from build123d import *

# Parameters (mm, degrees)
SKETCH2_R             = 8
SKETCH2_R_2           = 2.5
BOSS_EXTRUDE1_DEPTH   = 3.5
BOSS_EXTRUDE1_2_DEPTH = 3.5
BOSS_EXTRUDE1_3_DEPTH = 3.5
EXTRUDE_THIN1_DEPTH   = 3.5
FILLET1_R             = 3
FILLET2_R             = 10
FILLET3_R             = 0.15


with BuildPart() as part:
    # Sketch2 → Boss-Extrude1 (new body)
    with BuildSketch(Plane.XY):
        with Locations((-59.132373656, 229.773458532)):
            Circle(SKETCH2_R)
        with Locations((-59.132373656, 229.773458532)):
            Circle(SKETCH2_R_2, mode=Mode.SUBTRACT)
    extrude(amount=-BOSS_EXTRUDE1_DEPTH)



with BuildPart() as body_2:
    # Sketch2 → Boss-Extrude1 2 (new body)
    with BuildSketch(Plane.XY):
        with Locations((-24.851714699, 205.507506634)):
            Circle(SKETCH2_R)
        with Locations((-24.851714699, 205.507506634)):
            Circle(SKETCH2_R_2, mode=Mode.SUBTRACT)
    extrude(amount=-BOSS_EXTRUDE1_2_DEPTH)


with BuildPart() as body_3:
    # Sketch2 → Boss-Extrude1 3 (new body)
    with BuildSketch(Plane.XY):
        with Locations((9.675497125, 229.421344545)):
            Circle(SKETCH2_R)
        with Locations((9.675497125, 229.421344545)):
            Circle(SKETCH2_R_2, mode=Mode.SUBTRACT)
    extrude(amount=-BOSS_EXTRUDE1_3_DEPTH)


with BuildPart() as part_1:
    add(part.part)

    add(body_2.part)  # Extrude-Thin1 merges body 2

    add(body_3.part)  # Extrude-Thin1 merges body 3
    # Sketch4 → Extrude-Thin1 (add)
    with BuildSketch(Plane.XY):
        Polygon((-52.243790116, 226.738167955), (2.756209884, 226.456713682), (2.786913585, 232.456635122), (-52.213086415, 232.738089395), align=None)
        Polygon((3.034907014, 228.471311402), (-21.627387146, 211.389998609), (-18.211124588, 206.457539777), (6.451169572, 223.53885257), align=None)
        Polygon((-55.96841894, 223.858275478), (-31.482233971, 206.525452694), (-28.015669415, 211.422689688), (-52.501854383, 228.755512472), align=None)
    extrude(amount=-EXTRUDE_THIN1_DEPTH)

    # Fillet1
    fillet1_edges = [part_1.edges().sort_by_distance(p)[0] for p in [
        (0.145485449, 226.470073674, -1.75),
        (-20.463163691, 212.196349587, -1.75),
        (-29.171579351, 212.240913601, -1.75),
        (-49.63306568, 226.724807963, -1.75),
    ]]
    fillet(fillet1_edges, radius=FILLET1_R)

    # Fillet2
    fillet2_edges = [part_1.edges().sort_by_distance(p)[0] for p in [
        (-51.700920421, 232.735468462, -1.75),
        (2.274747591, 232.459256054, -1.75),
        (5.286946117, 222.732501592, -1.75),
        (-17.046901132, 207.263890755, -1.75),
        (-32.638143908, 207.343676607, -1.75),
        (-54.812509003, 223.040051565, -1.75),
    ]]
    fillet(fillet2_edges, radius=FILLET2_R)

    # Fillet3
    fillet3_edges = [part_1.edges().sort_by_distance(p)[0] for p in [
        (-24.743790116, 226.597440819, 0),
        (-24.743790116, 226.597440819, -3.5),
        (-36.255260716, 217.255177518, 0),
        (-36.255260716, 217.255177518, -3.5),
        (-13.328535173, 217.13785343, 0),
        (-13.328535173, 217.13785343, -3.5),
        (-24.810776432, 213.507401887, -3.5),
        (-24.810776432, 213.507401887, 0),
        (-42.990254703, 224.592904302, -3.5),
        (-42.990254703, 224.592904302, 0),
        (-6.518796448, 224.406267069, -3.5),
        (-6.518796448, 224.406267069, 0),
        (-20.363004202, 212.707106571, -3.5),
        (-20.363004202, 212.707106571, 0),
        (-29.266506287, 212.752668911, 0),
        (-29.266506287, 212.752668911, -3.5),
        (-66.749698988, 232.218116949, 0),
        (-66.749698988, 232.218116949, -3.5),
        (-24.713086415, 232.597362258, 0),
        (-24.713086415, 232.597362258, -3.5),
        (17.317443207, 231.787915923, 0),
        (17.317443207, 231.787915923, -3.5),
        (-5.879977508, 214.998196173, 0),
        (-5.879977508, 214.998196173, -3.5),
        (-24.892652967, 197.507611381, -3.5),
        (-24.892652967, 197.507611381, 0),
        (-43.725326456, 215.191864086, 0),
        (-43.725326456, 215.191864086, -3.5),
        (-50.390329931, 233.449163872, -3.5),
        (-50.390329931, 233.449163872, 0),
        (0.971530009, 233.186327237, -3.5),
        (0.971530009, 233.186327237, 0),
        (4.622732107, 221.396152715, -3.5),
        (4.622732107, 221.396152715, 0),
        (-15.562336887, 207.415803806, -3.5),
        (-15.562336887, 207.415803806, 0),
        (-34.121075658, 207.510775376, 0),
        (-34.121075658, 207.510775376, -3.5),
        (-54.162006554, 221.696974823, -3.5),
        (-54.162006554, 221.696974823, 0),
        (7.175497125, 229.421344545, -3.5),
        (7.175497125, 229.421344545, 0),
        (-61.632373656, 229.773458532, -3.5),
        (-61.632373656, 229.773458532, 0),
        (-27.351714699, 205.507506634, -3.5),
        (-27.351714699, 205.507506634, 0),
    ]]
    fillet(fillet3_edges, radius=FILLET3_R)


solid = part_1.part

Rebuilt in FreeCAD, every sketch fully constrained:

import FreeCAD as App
import Part
import Sketcher
Q = App.Units.Quantity


def edges_at(feature, points):
    """Names of the edges that pass closest to the given points."""
    edges = feature.Shape.Edges
    near = lambda p: min(range(len(edges)), key=lambda i: edges[i].distToShape(Part.Vertex(*p))[0])
    return sorted({f"Edge{near(p) + 1}" for p in points})


def add_polygon(sketch, points):
    """Adds a closed chain of lines whose ends are joined by coincident constraints."""
    first, n = sketch.GeometryCount, len(points)
    for a, b in zip(points, points[1:] + points[:1]):
        sketch.addGeometry(Part.LineSegment(App.Vector(*a, 0), App.Vector(*b, 0)), False)
    for i in range(n):
        sketch.addConstraint(Sketcher.Constraint("Coincident", first + i, 2, first + (i + 1) % n, 1))

doc = App.newDocument("Part")
body = doc.addObject("PartDesign::Body", "Body")

# Sketch on XY plane
sketch1 = body.newObject("Sketcher::SketchObject", "Sketch")
sketch1.AttachmentSupport = (doc.getObject("XY_Plane"), [""])
sketch1.MapMode = "FlatFace"
sketch1.addGeometry(Part.Circle(App.Vector(-59.1, 229.8, 0), App.Vector(0, 0, 1), 8), False)
sketch1.addGeometry(Part.Circle(App.Vector(-59.1, 229.8, 0), App.Vector(0, 0, 1), 2.5), False)
sketch1.addConstraint(Sketcher.Constraint("Coincident", 1, 3, 0, 3))
sketch1.addConstraint(Sketcher.Constraint("Diameter", 0, Q("16 mm")))
sketch1.addConstraint(Sketcher.Constraint("Diameter", 1, Q("5 mm")))
sketch1.addConstraint(Sketcher.Constraint("DistanceY", -1, 1, 0, 3, Q("229.773459 mm")))
sketch1.addConstraint(Sketcher.Constraint("DistanceX", 0, 3, -1, 1, Q("59.132374 mm")))
pad1 = body.newObject("PartDesign::Pad", "Pad")
pad1.Profile = sketch1
pad1.Length = 3.5
pad1.Reversed = True
body2 = doc.addObject("PartDesign::Body", "Body001")

# Sketch on XY plane
sketch2 = body2.newObject("Sketcher::SketchObject", "Sketch001")
sketch2.AttachmentSupport = (doc.getObject("XY_Plane001"), [""])
sketch2.MapMode = "FlatFace"
sketch2.addGeometry(Part.Circle(App.Vector(-24.9, 205.5, 0), App.Vector(0, 0, 1), 8), False)
sketch2.addGeometry(Part.Circle(App.Vector(-24.9, 205.5, 0), App.Vector(0, 0, 1), 2.5), False)
sketch2.addConstraint(Sketcher.Constraint("Coincident", 1, 3, 0, 3))
sketch2.addConstraint(Sketcher.Constraint("Diameter", 0, Q("16 mm")))
sketch2.addConstraint(Sketcher.Constraint("Diameter", 1, Q("5 mm")))
sketch2.addConstraint(Sketcher.Constraint("DistanceX", 0, 3, -1, 1, Q("24.851715 mm")))
sketch2.addConstraint(Sketcher.Constraint("DistanceY", -1, 1, 0, 3, Q("205.507507 mm")))
pad2 = body2.newObject("PartDesign::Pad", "Pad001")
pad2.Profile = sketch2
pad2.Length = 3.5
pad2.Reversed = True
body3 = doc.addObject("PartDesign::Body", "Body002")

# Sketch on XY plane
sketch3 = body3.newObject("Sketcher::SketchObject", "Sketch002")
sketch3.AttachmentSupport = (doc.getObject("XY_Plane002"), [""])
sketch3.MapMode = "FlatFace"
sketch3.addGeometry(Part.Circle(App.Vector(9.7, 229.4, 0), App.Vector(0, 0, 1), 8), False)
sketch3.addGeometry(Part.Circle(App.Vector(9.7, 229.4, 0), App.Vector(0, 0, 1), 2.5), False)
sketch3.addConstraint(Sketcher.Constraint("Coincident", 1, 3, 0, 3))
sketch3.addConstraint(Sketcher.Constraint("Diameter", 0, Q("16 mm")))
sketch3.addConstraint(Sketcher.Constraint("Diameter", 1, Q("5 mm")))
sketch3.addConstraint(Sketcher.Constraint("DistanceX", -1, 1, 0, 3, Q("9.675497 mm")))
sketch3.addConstraint(Sketcher.Constraint("DistanceY", -1, 1, 0, 3, Q("229.421345 mm")))
pad3 = body3.newObject("PartDesign::Pad", "Pad002")
pad3.Profile = sketch3
pad3.Length = 3.5
pad3.Reversed = True
body.AllowCompound = True
doc.recompute()

boolean = body.newObject("PartDesign::Boolean", "Boolean")
boolean.Type = "Fuse"
boolean.addObjects([body2])
doc.recompute()

boolean2 = body.newObject("PartDesign::Boolean", "Boolean001")
boolean2.Type = "Fuse"
boolean2.addObjects([body3])

# Sketch on XY plane
sketch4 = body.newObject("Sketcher::SketchObject", "Sketch003")
sketch4.AttachmentSupport = (doc.getObject("XY_Plane"), [""])
sketch4.MapMode = "FlatFace"
add_polygon(sketch4, [(2.79, 232.46), (-52.21, 232.74), (-52.23, 228.57), (-52.5, 228.76), (-55.97, 223.86), (-31.48, 206.53), (-28.02, 211.42), (-49.63, 226.72), (0.15, 226.47), (-21.63, 211.39), (-18.21, 206.46), (6.45, 223.54), (3.03, 228.47), (2.77, 228.28)])  # lines 0-13
sketch4.addConstraint(Sketcher.Constraint("Perpendicular", 0, 1))
sketch4.addConstraint(Sketcher.Constraint("Perpendicular", 2, 3))
sketch4.addConstraint(Sketcher.Constraint("Perpendicular", 3, 4))
sketch4.addConstraint(Sketcher.Constraint("Perpendicular", 4, 5))
sketch4.addConstraint(Sketcher.Constraint("Perpendicular", 5, 6))
sketch4.addConstraint(Sketcher.Constraint("Perpendicular", 1, 7))
sketch4.addConstraint(Sketcher.Constraint("Perpendicular", 8, 9))
sketch4.addConstraint(Sketcher.Constraint("Perpendicular", 9, 10))
sketch4.addConstraint(Sketcher.Constraint("Perpendicular", 10, 11))
sketch4.addConstraint(Sketcher.Constraint("Perpendicular", 11, 12))
sketch4.addConstraint(Sketcher.Constraint("Perpendicular", 7, 13))
sketch4.addConstraint(Sketcher.Constraint("Equal", 3, 5))
sketch4.addConstraint(Sketcher.Constraint("Equal", 6, 8))
sketch4.addConstraint(Sketcher.Constraint("Equal", 5, 9))
sketch4.addConstraint(Sketcher.Constraint("Equal", 4, 10))
sketch4.addConstraint(Sketcher.Constraint("Equal", 9, 11))
sketch4.addConstraint(Sketcher.Constraint("Equal", 2, 12))
sketch4.addConstraint(Sketcher.Constraint("Equal", 1, 13))
sketch4.addConstraint(Sketcher.Constraint("Distance", 3, Q("6 mm")))
sketch4.addConstraint(Sketcher.Constraint("Distance", 4, Q("30 mm")))
sketch4.addConstraint(Sketcher.Constraint("DistanceY", -1, 1, 8, 2, Q("211.389999 mm")))
sketch4.addConstraint(Sketcher.Constraint("DistanceX", 1, 2, 4, 2, Q("20.752201 mm")))
sketch4.addConstraint(Sketcher.Constraint("DistanceY", 5, 2, 0, 2, Q("21.3154 mm")))
sketch4.addConstraint(Sketcher.Constraint("DistanceY", 4, 2, 10, 2, Q("17.0134 mm")))
sketch4.addConstraint(Sketcher.Constraint("DistanceX", 8, 2, 13, 2, Q("24.414301 mm")))
sketch4.addConstraint(Sketcher.Constraint("Distance", 0, Q("55.00072 mm")))
sketch4.addConstraint(Sketcher.Constraint("DistanceX", 3, 2, -1, 1, Q("55.968419 mm")))
sketch4.addConstraint(Sketcher.Constraint("DistanceX", 1, 2, 6, 2, Q("2.60137 mm")))
pad4 = body.newObject("PartDesign::Pad", "Pad003")
pad4.Profile = sketch4
pad4.Length = 3.5
pad4.Reversed = True
doc.recompute()

fillet = body.newObject("PartDesign::Fillet", "Fillet")
fillet.Base = (pad4, edges_at(pad4, [
    (0.145, 226.47, -1.75),
    (-20.463, 212.196, -1.75),
    (-29.172, 212.241, -1.75),
    (-49.633, 226.725, -1.75),
]))
fillet.Radius = 3
doc.recompute()

fillet2 = body.newObject("PartDesign::Fillet", "Fillet001")
fillet2.Base = (fillet, edges_at(fillet, [
    (-51.701, 232.735, -1.75),
    (2.275, 232.459, -1.75),
    (5.287, 222.733, -1.75),
    (-17.047, 207.264, -1.75),
    (-32.638, 207.344, -1.75),
    (-54.813, 223.04, -1.75),
]))
fillet2.Radius = 10
doc.recompute()

fillet3 = body.newObject("PartDesign::Fillet", "Fillet002")
fillet3.Base = (fillet2, edges_at(fillet2, [
    (-24.744, 226.597, 0),
    (-24.744, 226.597, -3.5),
    (-36.255, 217.255, 0),
    (-36.255, 217.255, -3.5),
    (-13.329, 217.138, 0),
    (-13.329, 217.138, -3.5),
    (-24.811, 213.507, -3.5),
    (-24.811, 213.507, 0),
    (-42.99, 224.593, -3.5),
    (-42.99, 224.593, 0),
    (-6.519, 224.406, -3.5),
    (-6.519, 224.406, 0),
    (-20.363, 212.707, -3.5),
    (-20.363, 212.707, 0),
    (-29.267, 212.753, 0),
    (-29.267, 212.753, -3.5),
    (-66.75, 232.218, 0),
    (-66.75, 232.218, -3.5),
    (-24.713, 232.597, 0),
    (-24.713, 232.597, -3.5),
    (17.317, 231.788, 0),
    (17.317, 231.788, -3.5),
    (-5.88, 214.998, 0),
    (-5.88, 214.998, -3.5),
    (-24.893, 197.508, -3.5),
    (-24.893, 197.508, 0),
    (-43.725, 215.192, 0),
    (-43.725, 215.192, -3.5),
    (-50.39, 233.449, -3.5),
    (-50.39, 233.449, 0),
    (0.972, 233.186, -3.5),
    (0.972, 233.186, 0),
    (4.623, 221.396, -3.5),
    (4.623, 221.396, 0),
    (-15.562, 207.416, -3.5),
    (-15.562, 207.416, 0),
    (-34.121, 207.511, 0),
    (-34.121, 207.511, -3.5),
    (-54.162, 221.697, -3.5),
    (-54.162, 221.697, 0),
    (7.175, 229.421, -3.5),
    (7.175, 229.421, 0),
    (-61.632, 229.773, -3.5),
    (-61.632, 229.773, 0),
    (-27.352, 205.508, -3.5),
    (-27.352, 205.508, 0),
]))
fillet3.Radius = 0.15

doc.recompute()
